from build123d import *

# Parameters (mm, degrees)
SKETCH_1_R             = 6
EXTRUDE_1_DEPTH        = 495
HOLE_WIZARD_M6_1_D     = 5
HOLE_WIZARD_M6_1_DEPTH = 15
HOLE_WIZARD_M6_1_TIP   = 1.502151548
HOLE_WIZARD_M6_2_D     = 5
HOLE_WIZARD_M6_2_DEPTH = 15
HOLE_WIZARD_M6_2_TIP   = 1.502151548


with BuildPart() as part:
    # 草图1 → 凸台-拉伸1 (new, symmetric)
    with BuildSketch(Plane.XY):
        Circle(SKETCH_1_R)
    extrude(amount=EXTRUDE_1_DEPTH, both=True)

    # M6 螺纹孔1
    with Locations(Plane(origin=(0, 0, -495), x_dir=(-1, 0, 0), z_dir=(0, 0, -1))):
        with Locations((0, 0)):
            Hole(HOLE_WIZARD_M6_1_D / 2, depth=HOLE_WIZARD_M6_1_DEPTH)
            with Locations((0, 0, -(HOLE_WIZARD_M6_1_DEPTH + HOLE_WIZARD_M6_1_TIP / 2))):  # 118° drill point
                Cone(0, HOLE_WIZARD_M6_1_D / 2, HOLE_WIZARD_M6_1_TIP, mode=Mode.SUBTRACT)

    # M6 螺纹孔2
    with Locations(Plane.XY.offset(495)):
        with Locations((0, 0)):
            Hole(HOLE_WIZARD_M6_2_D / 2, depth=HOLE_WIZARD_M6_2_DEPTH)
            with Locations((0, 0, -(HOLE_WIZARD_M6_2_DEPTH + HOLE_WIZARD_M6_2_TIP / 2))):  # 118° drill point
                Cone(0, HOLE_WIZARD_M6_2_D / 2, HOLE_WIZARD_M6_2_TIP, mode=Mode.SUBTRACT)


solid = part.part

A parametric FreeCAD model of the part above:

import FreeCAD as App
import Part
import Sketcher

V = App.Vector
Q = App.Units.Quantity

doc = App.newDocument("Part")
body = doc.addObject("PartDesign::Body", "Body")

sketch1 = body.newObject("Sketcher::SketchObject", "Sketch")
sketch1.AttachmentSupport = (doc.getObject("XY_Plane"), [""])
sketch1.MapMode = "FlatFace"
sketch1.addGeometry(Part.Circle(V(0, 0, 0), V(0, 0, 1), 6), False)
sketch1.addConstraint(Sketcher.Constraint("Coincident", 0, 3, -1, 1))
sketch1.addConstraint(Sketcher.Constraint("Diameter", 0, Q("12 mm")))
pad1 = body.newObject("PartDesign::Pad", "Pad")
pad1.Profile = sketch1
pad1.Length = 990
pad1.Midplane = True

sketch2 = body.newObject("Sketcher::SketchObject", "Sketch001")
sketch2.AttachmentSupport = (doc.getObject("XY_Plane"), [""])
sketch2.MapMode = "FlatFace"
sketch2.AttachmentOffset = App.Placement(V(0, 0, -495), App.Rotation())
sketch2.addGeometry(Part.Circle(V(0, 0, 0), V(0, 0, 1), 2.5), False)
sketch2.addConstraint(Sketcher.Constraint("Coincident", 0, 3, -1, 1))
sketch2.addConstraint(Sketcher.Constraint("Diameter", 0, Q("5 mm")))
doc.recompute()
hole = body.newObject("PartDesign::Hole", "Hole")
hole.Profile = sketch2
hole.ThreadType = "None"
hole.Diameter = 5
hole.DepthType = "Dimension"
hole.Depth = 15
hole.DrillPoint = "Angled"
hole.DrillPointAngle = 118
hole.Reversed = True

sketch3 = body.newObject("Sketcher::SketchObject", "Sketch002")
sketch3.AttachmentSupport = (doc.getObject("XY_Plane"), [""])
sketch3.MapMode = "FlatFace"
sketch3.AttachmentOffset = App.Placement(V(0, 0, 495), App.Rotation())
sketch3.addGeometry(Part.Circle(V(0, 0, 0), V(0, 0, 1), 2.5), False)
sketch3.addConstraint(Sketcher.Constraint("Coincident", 0, 3, -1, 1))
sketch3.addConstraint(Sketcher.Constraint("Diameter", 0, Q("5 mm")))
doc.recompute()
hole2 = body.newObject("PartDesign::Hole", "Hole001")
hole2.Profile = sketch3
hole2.ThreadType = "None"
hole2.Diameter = 5
hole2.DepthType = "Dimension"
hole2.Depth = 15
hole2.DrillPoint = "Angled"
hole2.DrillPointAngle = 118

doc.recompute()
